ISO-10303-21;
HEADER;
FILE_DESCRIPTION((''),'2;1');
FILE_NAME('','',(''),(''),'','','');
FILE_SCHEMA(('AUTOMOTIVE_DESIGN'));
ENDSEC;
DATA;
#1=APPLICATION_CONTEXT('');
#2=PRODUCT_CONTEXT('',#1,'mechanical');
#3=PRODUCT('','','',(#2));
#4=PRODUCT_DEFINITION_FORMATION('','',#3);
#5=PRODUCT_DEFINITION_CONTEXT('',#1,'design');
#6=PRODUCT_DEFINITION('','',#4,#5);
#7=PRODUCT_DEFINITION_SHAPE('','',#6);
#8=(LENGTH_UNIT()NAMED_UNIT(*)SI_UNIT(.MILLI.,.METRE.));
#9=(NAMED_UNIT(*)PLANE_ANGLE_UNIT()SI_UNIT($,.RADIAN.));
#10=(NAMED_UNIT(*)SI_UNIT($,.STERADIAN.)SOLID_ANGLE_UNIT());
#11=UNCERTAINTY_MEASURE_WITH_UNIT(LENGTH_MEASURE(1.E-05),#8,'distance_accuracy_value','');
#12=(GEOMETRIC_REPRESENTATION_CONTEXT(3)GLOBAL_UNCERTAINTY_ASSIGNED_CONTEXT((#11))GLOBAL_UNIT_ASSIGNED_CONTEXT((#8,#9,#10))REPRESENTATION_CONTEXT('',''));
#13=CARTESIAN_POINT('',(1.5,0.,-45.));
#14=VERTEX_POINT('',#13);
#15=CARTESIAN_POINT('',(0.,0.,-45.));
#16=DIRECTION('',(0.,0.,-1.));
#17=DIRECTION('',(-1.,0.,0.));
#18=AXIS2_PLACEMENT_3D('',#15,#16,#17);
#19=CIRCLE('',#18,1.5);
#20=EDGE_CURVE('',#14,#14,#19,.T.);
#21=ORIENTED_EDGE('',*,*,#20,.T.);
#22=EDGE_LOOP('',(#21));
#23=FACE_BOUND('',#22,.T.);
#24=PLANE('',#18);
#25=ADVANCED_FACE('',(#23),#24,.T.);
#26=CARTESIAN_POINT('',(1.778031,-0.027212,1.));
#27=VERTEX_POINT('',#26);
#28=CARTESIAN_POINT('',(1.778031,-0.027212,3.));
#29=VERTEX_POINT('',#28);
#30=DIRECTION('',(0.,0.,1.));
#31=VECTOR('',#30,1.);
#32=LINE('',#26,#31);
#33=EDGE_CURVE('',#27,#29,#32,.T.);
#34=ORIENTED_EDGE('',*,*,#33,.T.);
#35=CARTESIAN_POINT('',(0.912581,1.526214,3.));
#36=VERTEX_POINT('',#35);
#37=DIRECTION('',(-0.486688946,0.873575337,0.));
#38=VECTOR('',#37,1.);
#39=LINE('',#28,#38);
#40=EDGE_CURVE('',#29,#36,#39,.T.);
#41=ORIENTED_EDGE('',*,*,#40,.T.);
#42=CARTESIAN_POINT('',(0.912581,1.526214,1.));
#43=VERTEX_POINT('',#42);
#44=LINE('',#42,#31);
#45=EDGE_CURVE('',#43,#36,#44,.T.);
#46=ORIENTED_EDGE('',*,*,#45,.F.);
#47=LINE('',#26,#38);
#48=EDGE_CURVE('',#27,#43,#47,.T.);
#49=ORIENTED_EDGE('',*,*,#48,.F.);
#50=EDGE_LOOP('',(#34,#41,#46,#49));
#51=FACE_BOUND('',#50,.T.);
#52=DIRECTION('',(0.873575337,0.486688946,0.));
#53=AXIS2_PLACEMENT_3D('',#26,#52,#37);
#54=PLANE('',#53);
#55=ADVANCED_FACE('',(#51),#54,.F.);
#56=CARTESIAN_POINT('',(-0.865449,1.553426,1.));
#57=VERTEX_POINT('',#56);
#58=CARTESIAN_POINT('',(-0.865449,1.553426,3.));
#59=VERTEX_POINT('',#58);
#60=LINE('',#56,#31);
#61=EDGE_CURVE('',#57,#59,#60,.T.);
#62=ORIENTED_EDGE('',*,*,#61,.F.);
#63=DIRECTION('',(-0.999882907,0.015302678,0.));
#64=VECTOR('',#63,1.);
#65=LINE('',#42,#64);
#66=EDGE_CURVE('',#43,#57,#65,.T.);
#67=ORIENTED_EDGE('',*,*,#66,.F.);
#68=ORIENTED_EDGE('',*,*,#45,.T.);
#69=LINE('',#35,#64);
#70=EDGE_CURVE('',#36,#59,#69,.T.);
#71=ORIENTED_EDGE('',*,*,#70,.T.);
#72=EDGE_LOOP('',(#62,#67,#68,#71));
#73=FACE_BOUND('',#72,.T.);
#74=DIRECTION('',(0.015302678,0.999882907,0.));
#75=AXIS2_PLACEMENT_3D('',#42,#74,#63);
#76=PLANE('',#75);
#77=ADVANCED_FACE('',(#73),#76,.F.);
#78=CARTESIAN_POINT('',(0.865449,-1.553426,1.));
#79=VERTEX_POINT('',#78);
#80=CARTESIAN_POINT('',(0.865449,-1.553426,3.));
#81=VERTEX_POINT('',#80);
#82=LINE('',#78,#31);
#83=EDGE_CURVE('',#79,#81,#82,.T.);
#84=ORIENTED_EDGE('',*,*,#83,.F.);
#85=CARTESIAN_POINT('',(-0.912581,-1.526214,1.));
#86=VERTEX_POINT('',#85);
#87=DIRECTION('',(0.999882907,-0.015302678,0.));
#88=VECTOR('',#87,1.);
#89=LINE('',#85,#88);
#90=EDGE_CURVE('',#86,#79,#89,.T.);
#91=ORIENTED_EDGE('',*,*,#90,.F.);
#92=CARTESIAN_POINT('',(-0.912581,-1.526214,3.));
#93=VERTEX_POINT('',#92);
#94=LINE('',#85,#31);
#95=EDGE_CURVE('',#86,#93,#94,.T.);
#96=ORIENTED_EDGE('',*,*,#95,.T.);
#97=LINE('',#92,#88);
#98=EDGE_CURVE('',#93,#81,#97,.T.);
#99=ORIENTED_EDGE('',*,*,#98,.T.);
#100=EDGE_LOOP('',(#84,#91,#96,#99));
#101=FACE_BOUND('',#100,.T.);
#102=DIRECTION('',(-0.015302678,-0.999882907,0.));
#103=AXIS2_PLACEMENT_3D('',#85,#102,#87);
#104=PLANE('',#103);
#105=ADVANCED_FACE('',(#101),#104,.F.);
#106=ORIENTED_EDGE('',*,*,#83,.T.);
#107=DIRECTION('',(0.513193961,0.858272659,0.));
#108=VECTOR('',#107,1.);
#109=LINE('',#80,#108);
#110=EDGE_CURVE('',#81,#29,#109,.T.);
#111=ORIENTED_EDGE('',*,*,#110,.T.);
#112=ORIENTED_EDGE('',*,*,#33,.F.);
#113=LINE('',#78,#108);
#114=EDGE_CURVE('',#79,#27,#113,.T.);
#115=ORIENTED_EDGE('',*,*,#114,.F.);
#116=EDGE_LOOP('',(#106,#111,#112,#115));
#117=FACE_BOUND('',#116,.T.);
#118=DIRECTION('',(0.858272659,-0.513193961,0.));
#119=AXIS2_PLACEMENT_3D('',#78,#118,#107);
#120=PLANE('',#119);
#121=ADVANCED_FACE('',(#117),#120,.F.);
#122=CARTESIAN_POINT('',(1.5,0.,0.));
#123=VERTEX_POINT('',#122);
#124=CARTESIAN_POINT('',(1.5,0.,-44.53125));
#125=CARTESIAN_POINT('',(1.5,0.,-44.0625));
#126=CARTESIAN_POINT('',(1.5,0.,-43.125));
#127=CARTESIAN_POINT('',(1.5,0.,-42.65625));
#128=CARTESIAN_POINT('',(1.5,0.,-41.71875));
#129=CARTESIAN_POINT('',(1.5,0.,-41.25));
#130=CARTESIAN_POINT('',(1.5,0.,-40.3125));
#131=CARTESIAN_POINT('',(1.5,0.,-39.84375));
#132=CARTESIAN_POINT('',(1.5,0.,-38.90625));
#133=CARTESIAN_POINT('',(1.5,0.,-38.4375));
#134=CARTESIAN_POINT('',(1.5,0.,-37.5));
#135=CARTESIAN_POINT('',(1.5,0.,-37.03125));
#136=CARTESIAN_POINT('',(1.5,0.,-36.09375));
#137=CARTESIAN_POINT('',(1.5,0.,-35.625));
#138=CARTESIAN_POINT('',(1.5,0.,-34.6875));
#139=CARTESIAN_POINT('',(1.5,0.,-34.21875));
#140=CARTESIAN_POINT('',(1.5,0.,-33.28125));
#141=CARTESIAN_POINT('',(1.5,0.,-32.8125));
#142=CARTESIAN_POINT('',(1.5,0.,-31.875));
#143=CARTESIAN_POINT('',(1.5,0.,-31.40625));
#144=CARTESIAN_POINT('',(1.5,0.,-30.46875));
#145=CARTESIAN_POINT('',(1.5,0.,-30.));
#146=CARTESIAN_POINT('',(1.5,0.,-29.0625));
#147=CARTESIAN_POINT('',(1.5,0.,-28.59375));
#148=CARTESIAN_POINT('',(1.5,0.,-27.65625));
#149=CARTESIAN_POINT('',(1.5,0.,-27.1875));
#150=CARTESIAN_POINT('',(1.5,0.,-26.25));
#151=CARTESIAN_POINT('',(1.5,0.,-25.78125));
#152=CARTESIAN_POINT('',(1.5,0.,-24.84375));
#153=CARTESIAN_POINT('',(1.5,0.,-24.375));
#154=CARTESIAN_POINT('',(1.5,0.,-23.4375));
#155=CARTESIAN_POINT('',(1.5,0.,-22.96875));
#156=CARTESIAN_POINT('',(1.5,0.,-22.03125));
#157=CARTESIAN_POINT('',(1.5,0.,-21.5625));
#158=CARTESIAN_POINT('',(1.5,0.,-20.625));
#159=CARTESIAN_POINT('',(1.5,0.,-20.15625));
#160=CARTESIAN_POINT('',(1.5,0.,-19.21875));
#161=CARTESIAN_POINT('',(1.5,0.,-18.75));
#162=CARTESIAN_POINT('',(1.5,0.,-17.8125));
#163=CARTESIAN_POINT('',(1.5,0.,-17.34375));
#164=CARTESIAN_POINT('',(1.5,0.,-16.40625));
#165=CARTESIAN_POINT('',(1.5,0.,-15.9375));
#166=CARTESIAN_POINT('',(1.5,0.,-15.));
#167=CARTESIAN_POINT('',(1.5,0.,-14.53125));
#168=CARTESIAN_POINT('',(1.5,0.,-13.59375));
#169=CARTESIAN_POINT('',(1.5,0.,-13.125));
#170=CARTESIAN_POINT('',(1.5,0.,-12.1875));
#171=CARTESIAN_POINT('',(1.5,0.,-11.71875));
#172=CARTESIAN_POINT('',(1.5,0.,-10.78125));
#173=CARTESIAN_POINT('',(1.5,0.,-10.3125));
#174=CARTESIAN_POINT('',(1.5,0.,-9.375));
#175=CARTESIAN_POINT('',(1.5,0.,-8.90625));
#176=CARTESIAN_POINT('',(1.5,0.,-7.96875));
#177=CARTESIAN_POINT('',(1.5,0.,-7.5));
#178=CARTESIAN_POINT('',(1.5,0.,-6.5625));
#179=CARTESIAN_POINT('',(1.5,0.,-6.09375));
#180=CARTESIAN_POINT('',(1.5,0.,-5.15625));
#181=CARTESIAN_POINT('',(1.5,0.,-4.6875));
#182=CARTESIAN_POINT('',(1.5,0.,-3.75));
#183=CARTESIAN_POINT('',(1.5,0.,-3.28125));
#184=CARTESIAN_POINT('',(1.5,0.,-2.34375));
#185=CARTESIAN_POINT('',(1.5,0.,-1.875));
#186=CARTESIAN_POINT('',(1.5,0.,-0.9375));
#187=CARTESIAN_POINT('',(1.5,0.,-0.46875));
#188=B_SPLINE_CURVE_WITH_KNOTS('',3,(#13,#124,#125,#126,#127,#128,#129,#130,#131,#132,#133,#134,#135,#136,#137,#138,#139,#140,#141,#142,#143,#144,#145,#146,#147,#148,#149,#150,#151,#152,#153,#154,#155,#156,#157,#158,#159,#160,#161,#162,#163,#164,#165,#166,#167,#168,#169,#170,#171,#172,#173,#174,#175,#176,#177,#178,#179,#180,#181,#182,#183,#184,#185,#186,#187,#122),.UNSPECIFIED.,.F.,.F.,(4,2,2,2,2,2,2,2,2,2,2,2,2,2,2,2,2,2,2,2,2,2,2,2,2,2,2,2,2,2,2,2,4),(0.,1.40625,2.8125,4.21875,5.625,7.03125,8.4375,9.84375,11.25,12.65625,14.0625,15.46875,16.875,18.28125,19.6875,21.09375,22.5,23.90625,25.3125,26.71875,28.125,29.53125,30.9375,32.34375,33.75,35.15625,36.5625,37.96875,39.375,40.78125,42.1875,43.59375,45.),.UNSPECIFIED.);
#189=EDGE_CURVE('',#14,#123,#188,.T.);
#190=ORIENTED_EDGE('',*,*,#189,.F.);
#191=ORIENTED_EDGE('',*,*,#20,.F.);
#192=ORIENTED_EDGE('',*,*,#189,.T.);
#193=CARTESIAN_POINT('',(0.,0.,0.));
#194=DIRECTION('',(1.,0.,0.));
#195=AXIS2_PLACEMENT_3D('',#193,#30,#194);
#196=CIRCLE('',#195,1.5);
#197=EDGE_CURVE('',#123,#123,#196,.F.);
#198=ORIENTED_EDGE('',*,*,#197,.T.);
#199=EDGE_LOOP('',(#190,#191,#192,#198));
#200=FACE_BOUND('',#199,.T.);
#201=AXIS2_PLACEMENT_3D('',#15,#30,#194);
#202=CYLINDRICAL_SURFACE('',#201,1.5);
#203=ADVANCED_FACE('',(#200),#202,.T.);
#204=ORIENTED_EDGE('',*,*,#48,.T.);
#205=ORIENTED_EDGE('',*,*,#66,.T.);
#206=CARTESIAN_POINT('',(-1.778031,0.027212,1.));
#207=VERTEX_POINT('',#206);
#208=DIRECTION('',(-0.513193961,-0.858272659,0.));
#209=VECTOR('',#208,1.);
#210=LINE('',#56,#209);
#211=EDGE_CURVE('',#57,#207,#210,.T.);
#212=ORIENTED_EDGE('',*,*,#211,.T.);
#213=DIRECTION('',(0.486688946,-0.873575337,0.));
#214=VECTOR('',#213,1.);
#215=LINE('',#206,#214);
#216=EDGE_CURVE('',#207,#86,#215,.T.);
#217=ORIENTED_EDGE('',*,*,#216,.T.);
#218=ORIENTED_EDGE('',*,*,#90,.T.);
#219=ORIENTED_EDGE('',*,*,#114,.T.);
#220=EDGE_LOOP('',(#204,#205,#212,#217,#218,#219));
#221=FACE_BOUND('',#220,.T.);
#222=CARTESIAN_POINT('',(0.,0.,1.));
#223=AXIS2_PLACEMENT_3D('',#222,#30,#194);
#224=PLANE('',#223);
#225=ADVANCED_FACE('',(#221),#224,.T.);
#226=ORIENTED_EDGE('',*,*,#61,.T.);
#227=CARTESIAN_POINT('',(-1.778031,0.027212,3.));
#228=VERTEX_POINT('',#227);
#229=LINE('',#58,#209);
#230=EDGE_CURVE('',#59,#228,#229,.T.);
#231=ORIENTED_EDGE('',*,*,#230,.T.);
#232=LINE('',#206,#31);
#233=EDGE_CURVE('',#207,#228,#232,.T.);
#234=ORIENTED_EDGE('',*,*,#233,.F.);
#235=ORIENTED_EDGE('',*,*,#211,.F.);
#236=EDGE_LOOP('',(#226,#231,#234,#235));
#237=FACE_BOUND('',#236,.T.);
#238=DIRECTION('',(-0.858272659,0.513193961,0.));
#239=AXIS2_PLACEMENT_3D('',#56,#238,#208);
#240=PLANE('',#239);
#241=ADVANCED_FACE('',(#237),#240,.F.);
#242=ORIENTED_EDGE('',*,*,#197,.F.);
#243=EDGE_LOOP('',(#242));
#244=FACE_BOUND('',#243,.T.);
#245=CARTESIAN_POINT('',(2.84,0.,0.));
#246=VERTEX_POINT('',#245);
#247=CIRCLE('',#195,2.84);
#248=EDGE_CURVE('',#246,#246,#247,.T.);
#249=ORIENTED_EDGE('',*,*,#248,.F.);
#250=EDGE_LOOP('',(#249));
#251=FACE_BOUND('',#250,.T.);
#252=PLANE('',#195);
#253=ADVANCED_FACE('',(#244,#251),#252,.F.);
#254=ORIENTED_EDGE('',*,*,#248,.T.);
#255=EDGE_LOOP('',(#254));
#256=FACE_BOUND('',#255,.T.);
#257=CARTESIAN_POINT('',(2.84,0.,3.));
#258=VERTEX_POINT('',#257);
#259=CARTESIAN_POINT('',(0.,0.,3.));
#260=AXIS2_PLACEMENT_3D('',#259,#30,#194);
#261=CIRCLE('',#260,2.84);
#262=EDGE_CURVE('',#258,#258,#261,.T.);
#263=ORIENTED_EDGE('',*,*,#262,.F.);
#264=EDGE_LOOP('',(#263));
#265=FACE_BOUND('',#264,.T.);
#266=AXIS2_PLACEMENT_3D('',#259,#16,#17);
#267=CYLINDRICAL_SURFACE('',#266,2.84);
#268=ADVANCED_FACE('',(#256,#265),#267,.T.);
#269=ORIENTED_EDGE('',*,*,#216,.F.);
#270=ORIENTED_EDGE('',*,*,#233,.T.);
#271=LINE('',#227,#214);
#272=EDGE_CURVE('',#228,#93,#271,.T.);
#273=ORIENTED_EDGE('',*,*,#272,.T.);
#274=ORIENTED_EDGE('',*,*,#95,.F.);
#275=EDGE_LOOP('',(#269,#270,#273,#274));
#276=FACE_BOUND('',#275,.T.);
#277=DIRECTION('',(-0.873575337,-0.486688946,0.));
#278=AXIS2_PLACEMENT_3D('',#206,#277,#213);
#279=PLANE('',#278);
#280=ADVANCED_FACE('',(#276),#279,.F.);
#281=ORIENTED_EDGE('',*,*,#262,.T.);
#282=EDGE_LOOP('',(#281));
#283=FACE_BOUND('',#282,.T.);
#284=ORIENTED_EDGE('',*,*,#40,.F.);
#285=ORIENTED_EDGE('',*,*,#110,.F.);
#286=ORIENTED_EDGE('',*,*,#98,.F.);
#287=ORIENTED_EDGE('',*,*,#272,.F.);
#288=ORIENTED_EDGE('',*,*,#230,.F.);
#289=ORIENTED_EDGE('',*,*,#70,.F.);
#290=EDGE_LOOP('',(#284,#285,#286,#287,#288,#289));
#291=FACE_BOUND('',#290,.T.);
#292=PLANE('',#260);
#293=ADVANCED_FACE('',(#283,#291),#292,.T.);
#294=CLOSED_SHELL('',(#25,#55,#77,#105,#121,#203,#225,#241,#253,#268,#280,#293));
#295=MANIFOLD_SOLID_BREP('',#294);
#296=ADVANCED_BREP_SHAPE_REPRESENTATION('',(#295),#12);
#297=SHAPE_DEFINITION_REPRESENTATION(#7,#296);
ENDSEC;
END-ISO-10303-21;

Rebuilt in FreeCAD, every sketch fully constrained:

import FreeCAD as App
import Part
import Sketcher

doc = App.newDocument("Part")
body = doc.addObject("PartDesign::Body", "Body")

sketch1 = doc.addObject("Sketcher::SketchObject", "Sketch")
body.addObject(sketch1)
sketch1.AttachmentSupport = (doc.XY_Plane, [""])
sketch1.MapMode = "FlatFace"
sketch1.addGeometry(Part.Circle(App.Vector(0, 0, 0), App.Vector(0, 0, 1), 2.8), False)
sketch1.addConstraint(Sketcher.Constraint("Coincident", 0, 3, -1, 1))
sketch1.addConstraint(Sketcher.Constraint("Diameter", 0, 5.68))
pad1 = doc.addObject("PartDesign::Pad", "Pad")
body.addObject(pad1)
pad1.Profile = sketch1
pad1.Length = 3

sketch2 = doc.addObject("Sketcher::SketchObject", "Sketch001")
body.addObject(sketch2)
sketch2.AttachmentSupport = (doc.XY_Plane, [""])
sketch2.MapMode = "FlatFace"
sketch2.addGeometry(Part.Circle(App.Vector(0, 0, 0), App.Vector(0, 0, 1), 1.5), False)
sketch2.addConstraint(Sketcher.Constraint("Coincident", 0, 3, -1, 1))
sketch2.addConstraint(Sketcher.Constraint("Diameter", 0, 3.0))
pad2 = doc.addObject("PartDesign::Pad", "Pad001")
body.addObject(pad2)
pad2.Profile = sketch2
pad2.Length = 45
pad2.Reversed = True

sketch3 = doc.addObject("Sketcher::SketchObject", "Sketch002")
body.addObject(sketch3)
sketch3.AttachmentSupport = (doc.XY_Plane, [""])
sketch3.MapMode = "FlatFace"
sketch3.AttachmentOffset = App.Placement(App.Vector(0, 0, 3), App.Rotation())
sketch3.addGeometry(Part.LineSegment(App.Vector(0.9, 1.5, 0), App.Vector(-0.9, 1.6, 0)), False)
sketch3.addGeometry(Part.LineSegment(App.Vector(-0.9, 1.6, 0), App.Vector(-1.8, 0, 0)), False)
sketch3.addGeometry(Part.LineSegment(App.Vector(-1.8, 0, 0), App.Vector(-0.9, -1.5, 0)), False)
sketch3.addGeometry(Part.LineSegment(App.Vector(-0.9, -1.5, 0), App.Vector(0.9, -1.6, 0)), False)
sketch3.addGeometry(Part.LineSegment(App.Vector(0.9, -1.6, 0), App.Vector(1.8, 0, 0)), False)
sketch3.addGeometry(Part.LineSegment(App.Vector(1.8, 0, 0), App.Vector(0.9, 1.5, 0)), False)
sketch3.addConstraint(Sketcher.Constraint("Coincident", 0, 2, 1, 1))
sketch3.addConstraint(Sketcher.Constraint("Coincident", 1, 2, 2, 1))
sketch3.addConstraint(Sketcher.Constraint("Coincident", 2, 2, 3, 1))
sketch3.addConstraint(Sketcher.Constraint("Coincident", 3, 2, 4, 1))
sketch3.addConstraint(Sketcher.Constraint("Coincident", 4, 2, 5, 1))
sketch3.addConstraint(Sketcher.Constraint("Coincident", 5, 2, 0, 1))
sketch3.addConstraint(Sketcher.Constraint("Symmetric", 0, 2, 3, 2, -1, 1))
sketch3.addConstraint(Sketcher.Constraint("Symmetric", 1, 2, 4, 2, -1, 1))
sketch3.addConstraint(Sketcher.Constraint("Symmetric", 2, 2, 5, 2, -1, 1))
sketch3.addConstraint(Sketcher.Constraint("Equal", 0, 1))
sketch3.addConstraint(Sketcher.Constraint("Equal", 1, 2))
sketch3.addConstraint(Sketcher.Constraint("DistanceY", 2, 2, 4, 2, 1.499002))
sketch3.addConstraint(Sketcher.Constraint("DistanceX", 0, 2, 3, 2, 1.730898))
sketch3.addConstraint(Sketcher.Constraint("Distance", 0, 1.778239))
sketch3.addConstraint(Sketcher.Constraint("DistanceX", 1, 2, -1, 1, 1.778031))
pocket1 = doc.addObject("PartDesign::Pocket", "Pocket")
body.addObject(pocket1)
pocket1.Profile = sketch3
pocket1.Length = 2

doc.recompute()
